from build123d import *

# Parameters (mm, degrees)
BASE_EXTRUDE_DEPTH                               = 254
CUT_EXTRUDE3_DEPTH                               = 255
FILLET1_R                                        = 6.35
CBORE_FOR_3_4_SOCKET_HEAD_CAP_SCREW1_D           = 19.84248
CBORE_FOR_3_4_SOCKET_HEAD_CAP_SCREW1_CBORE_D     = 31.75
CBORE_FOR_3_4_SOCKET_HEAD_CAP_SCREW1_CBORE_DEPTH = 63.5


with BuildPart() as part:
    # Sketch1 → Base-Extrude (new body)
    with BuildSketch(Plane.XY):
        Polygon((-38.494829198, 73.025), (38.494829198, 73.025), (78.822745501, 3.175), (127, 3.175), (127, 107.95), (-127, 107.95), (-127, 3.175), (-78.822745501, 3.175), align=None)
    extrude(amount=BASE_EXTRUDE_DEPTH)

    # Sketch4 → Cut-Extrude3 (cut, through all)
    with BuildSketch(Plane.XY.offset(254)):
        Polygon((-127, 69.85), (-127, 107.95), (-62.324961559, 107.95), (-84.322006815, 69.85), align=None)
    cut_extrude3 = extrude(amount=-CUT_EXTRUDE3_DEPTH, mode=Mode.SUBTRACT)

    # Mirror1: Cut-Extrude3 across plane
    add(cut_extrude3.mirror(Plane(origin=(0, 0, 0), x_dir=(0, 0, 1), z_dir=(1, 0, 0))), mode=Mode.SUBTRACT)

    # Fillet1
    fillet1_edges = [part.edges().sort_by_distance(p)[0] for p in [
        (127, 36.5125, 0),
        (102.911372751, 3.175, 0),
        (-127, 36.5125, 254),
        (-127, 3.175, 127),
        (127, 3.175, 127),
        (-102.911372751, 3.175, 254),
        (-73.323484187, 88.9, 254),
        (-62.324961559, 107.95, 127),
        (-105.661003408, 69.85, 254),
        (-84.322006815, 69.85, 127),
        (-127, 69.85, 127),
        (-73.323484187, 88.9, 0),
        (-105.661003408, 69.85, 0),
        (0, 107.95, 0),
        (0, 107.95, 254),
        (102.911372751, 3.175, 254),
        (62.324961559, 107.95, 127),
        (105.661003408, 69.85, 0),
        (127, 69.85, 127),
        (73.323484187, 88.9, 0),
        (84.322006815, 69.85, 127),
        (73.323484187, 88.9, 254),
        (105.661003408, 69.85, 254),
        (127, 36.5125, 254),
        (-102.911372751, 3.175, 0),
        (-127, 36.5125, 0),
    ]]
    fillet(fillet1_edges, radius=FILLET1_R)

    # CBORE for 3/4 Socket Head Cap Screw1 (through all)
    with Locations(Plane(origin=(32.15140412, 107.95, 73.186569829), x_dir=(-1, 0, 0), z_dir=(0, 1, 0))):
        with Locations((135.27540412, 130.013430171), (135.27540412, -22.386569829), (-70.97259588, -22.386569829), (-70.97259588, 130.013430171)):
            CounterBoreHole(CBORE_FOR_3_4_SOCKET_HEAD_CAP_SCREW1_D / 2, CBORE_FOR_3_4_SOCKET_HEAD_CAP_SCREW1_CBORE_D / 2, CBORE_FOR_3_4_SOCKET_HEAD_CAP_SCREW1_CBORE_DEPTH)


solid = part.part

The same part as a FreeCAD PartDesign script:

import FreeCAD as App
import Part
import Sketcher

V = App.Vector
Q = App.Units.Quantity


def edges_at(feature, points):
    """Names of the edges that pass closest to the given points."""
    edges = feature.Shape.Edges
    near = lambda p: min(range(len(edges)), key=lambda i: edges[i].distToShape(Part.Vertex(*p))[0])
    return sorted({f"Edge{near(p) + 1}" for p in points})

doc = App.newDocument("Part")
body = doc.addObject("PartDesign::Body", "Body")

# Sketch on XY plane
sketch1 = body.newObject("Sketcher::SketchObject", "Sketch")
sketch1.AttachmentSupport = (doc.getObject("XY_Plane"), [""])
sketch1.MapMode = "FlatFace"
sketch1.addGeometry([
    Part.LineSegment(V(-38, 73, 0), V(38, 73, 0)),  # 0
    Part.LineSegment(V(38, 73, 0), V(79, 3, 0)),  # 1
    Part.LineSegment(V(79, 3, 0), V(127, 3, 0)),  # 2
    Part.LineSegment(V(127, 3, 0), V(127, 108, 0)),  # 3
    Part.LineSegment(V(127, 108, 0), V(-127, 108, 0)),  # 4
    Part.LineSegment(V(-127, 108, 0), V(-127, 3, 0)),  # 5
    Part.LineSegment(V(-127, 3, 0), V(-79, 3, 0)),  # 6
    Part.LineSegment(V(-79, 3, 0), V(-38, 73, 0)),  # 7
], False)
sketch1.addConstraint([
    Sketcher.Constraint("Coincident", 0, 2, 1, 1),
    Sketcher.Constraint("Coincident", 1, 2, 2, 1),
    Sketcher.Constraint("Coincident", 2, 2, 3, 1),
    Sketcher.Constraint("Coincident", 3, 2, 4, 1),
    Sketcher.Constraint("Coincident", 4, 2, 5, 1),
    Sketcher.Constraint("Coincident", 5, 2, 6, 1),
    Sketcher.Constraint("Coincident", 6, 2, 7, 1),
    Sketcher.Constraint("Coincident", 7, 2, 0, 1),
    Sketcher.Constraint("Horizontal", 0),
    Sketcher.Constraint("Horizontal", 2),
    Sketcher.Constraint("Vertical", 3),
    Sketcher.Constraint("Horizontal", 4),
    Sketcher.Constraint("Vertical", 5),
    Sketcher.Constraint("Horizontal", 6),
    Sketcher.Constraint("Symmetric", 2, 2, 5, 2, -2),
    Sketcher.Constraint("Equal", 2, 6),
    Sketcher.Constraint("Equal", 1, 7),
    Sketcher.Constraint("DistanceX", 4, 2, 4, 1, Q("10 in")),
    Sketcher.Constraint("Angle", 1, Q("-60 deg")),
    Sketcher.Constraint("DistanceY", 3, 1, 3, 2, Q("4.125 in")),
    Sketcher.Constraint("DistanceY", -1, 1, 3, 2, Q("4.25 in")),
    Sketcher.Constraint("DistanceY", 1, 2, 0, 2, Q("2.75 in")),
    Sketcher.Constraint("DistanceX", 0, 1, 0, 2, 76.989658),
])
pad1 = body.newObject("PartDesign::Pad", "Pad")
pad1.Profile = sketch1
pad1.Length = Q("10 in")

# Sketch on XY plane
sketch2 = body.newObject("Sketcher::SketchObject", "Sketch001")
sketch2.AttachmentSupport = (doc.getObject("XY_Plane"), [""])
sketch2.MapMode = "FlatFace"
sketch2.AttachmentOffset = App.Placement(V(0, 0, 10 * 25.4), App.Rotation())
sketch2.addGeometry([
    Part.LineSegment(V(-127, 108, 0), V(-127, 70, 0)),
    Part.LineSegment(V(-127, 70, 0), V(-84, 70, 0)),
    Part.LineSegment(V(-84, 70, 0), V(-62, 108, 0)),
    Part.LineSegment(V(-62, 108, 0), V(-127, 108, 0)),
], False)
sketch2.addConstraint([
    Sketcher.Constraint("Coincident", 0, 2, 1, 1),
    Sketcher.Constraint("Coincident", 1, 2, 2, 1),
    Sketcher.Constraint("Coincident", 2, 2, 3, 1),
    Sketcher.Constraint("Coincident", 3, 2, 0, 1),
    Sketcher.Constraint("Vertical", 0),
    Sketcher.Constraint("Horizontal", 1),
    Sketcher.Constraint("Horizontal", 3),
    Sketcher.Constraint("DistanceY", 0, 2, 0, 1, Q("1.5 in")),
    Sketcher.Constraint("DistanceX", 0, 2, -1, 1, Q("5 in")),
    Sketcher.Constraint("Angle", 2, Q("60 deg")),
    Sketcher.Constraint("DistanceY", -1, 1, 0, 2, Q("2.75 in")),
    Sketcher.Constraint("DistanceX", 3, 2, 3, 1, 64.675038),
])
pocket1 = body.newObject("PartDesign::Pocket", "Pocket")
pocket1.Profile = sketch2
pocket1.Type = "ThroughAll"
doc.recompute()

mirrored = body.newObject("PartDesign::Mirrored", "Mirrored")
mirrored.Originals = [pocket1]
mirrored.MirrorPlane = (doc.getObject("YZ_Plane"), [""])
body.Tip = mirrored
doc.recompute()

fillet = body.newObject("PartDesign::Fillet", "Fillet")
fillet.Base = (mirrored, edges_at(mirrored, [
    (127, 36.513, 0),
    (102.911, 3.175, 0),
    (-127, 36.513, 254),
    (-127, 3.175, 127),
    (127, 3.175, 127),
    (-102.911, 3.175, 254),
    (-73.323, 88.9, 254),
    (-62.325, 107.95, 127),
    (-105.661, 69.85, 254),
    (-84.322, 69.85, 127),
    (-127, 69.85, 127),
    (-73.323, 88.9, 0),
    (-105.661, 69.85, 0),
    (0, 107.95, 0),
    (0, 107.95, 254),
    (102.911, 3.175, 254),
    (62.325, 107.95, 127),
    (105.661, 69.85, 0),
    (127, 69.85, 127),
    (73.323, 88.9, 0),
    (84.322, 69.85, 127),
    (73.323, 88.9, 254),
    (105.661, 69.85, 254),
    (127, 36.513, 254),
    (-102.911, 3.175, 0),
    (-127, 36.513, 0),
]))
fillet.Radius = Q("0.25 in")

# Sketch on XZ plane
sketch3 = body.newObject("Sketcher::SketchObject", "Sketch002")
sketch3.AttachmentSupport = (doc.getObject("XZ_Plane"), [""])
sketch3.MapMode = "FlatFace"
sketch3.AttachmentOffset = App.Placement(V(0, 0, -4.25 * 25.4), App.Rotation())
sketch3.addGeometry([
    Part.Circle(V(-103, 203, 0), V(0, 0, 1), 10),
    Part.Circle(V(-103, 51, 0), V(0, 0, 1), 10),
    Part.Circle(V(103, 51, 0), V(0, 0, 1), 10),
    Part.Circle(V(103, 203, 0), V(0, 0, 1), 10),
], False)
sketch3.addConstraint([
    Sketcher.Constraint("Equal", 0, 1),
    Sketcher.Constraint("Equal", 1, 2),
    Sketcher.Constraint("Equal", 2, 3),
    Sketcher.Constraint("Symmetric", 1, 3, 2, 3, -2),
    Sketcher.Constraint("Symmetric", 0, 3, 3, 3, -2),
    Sketcher.Constraint("Vertical", 0, 3, 1, 3),
    Sketcher.Constraint("DistanceY", -1, 1, 0, 3, Q("8 in")),
    Sketcher.Constraint("DistanceY", -1, 1, 1, 3, Q("2 in")),
    Sketcher.Constraint("Diameter", 0, Q("0.7812 in")),
    Sketcher.Constraint("DistanceX", 0, 3, -1, 1, Q("4.06 in")),
])
doc.recompute()
hole = body.newObject("PartDesign::Hole", "Hole")
hole.Profile = sketch3
hole.ThreadType = "None"
hole.Diameter = Q("0.7812 in")
hole.DepthType = "ThroughAll"
hole.HoleCutType = "Counterbore"
hole.HoleCutDiameter = Q("1.25 in")
hole.HoleCutDepth = Q("2.5 in")
hole.Reversed = True

doc.recompute()
